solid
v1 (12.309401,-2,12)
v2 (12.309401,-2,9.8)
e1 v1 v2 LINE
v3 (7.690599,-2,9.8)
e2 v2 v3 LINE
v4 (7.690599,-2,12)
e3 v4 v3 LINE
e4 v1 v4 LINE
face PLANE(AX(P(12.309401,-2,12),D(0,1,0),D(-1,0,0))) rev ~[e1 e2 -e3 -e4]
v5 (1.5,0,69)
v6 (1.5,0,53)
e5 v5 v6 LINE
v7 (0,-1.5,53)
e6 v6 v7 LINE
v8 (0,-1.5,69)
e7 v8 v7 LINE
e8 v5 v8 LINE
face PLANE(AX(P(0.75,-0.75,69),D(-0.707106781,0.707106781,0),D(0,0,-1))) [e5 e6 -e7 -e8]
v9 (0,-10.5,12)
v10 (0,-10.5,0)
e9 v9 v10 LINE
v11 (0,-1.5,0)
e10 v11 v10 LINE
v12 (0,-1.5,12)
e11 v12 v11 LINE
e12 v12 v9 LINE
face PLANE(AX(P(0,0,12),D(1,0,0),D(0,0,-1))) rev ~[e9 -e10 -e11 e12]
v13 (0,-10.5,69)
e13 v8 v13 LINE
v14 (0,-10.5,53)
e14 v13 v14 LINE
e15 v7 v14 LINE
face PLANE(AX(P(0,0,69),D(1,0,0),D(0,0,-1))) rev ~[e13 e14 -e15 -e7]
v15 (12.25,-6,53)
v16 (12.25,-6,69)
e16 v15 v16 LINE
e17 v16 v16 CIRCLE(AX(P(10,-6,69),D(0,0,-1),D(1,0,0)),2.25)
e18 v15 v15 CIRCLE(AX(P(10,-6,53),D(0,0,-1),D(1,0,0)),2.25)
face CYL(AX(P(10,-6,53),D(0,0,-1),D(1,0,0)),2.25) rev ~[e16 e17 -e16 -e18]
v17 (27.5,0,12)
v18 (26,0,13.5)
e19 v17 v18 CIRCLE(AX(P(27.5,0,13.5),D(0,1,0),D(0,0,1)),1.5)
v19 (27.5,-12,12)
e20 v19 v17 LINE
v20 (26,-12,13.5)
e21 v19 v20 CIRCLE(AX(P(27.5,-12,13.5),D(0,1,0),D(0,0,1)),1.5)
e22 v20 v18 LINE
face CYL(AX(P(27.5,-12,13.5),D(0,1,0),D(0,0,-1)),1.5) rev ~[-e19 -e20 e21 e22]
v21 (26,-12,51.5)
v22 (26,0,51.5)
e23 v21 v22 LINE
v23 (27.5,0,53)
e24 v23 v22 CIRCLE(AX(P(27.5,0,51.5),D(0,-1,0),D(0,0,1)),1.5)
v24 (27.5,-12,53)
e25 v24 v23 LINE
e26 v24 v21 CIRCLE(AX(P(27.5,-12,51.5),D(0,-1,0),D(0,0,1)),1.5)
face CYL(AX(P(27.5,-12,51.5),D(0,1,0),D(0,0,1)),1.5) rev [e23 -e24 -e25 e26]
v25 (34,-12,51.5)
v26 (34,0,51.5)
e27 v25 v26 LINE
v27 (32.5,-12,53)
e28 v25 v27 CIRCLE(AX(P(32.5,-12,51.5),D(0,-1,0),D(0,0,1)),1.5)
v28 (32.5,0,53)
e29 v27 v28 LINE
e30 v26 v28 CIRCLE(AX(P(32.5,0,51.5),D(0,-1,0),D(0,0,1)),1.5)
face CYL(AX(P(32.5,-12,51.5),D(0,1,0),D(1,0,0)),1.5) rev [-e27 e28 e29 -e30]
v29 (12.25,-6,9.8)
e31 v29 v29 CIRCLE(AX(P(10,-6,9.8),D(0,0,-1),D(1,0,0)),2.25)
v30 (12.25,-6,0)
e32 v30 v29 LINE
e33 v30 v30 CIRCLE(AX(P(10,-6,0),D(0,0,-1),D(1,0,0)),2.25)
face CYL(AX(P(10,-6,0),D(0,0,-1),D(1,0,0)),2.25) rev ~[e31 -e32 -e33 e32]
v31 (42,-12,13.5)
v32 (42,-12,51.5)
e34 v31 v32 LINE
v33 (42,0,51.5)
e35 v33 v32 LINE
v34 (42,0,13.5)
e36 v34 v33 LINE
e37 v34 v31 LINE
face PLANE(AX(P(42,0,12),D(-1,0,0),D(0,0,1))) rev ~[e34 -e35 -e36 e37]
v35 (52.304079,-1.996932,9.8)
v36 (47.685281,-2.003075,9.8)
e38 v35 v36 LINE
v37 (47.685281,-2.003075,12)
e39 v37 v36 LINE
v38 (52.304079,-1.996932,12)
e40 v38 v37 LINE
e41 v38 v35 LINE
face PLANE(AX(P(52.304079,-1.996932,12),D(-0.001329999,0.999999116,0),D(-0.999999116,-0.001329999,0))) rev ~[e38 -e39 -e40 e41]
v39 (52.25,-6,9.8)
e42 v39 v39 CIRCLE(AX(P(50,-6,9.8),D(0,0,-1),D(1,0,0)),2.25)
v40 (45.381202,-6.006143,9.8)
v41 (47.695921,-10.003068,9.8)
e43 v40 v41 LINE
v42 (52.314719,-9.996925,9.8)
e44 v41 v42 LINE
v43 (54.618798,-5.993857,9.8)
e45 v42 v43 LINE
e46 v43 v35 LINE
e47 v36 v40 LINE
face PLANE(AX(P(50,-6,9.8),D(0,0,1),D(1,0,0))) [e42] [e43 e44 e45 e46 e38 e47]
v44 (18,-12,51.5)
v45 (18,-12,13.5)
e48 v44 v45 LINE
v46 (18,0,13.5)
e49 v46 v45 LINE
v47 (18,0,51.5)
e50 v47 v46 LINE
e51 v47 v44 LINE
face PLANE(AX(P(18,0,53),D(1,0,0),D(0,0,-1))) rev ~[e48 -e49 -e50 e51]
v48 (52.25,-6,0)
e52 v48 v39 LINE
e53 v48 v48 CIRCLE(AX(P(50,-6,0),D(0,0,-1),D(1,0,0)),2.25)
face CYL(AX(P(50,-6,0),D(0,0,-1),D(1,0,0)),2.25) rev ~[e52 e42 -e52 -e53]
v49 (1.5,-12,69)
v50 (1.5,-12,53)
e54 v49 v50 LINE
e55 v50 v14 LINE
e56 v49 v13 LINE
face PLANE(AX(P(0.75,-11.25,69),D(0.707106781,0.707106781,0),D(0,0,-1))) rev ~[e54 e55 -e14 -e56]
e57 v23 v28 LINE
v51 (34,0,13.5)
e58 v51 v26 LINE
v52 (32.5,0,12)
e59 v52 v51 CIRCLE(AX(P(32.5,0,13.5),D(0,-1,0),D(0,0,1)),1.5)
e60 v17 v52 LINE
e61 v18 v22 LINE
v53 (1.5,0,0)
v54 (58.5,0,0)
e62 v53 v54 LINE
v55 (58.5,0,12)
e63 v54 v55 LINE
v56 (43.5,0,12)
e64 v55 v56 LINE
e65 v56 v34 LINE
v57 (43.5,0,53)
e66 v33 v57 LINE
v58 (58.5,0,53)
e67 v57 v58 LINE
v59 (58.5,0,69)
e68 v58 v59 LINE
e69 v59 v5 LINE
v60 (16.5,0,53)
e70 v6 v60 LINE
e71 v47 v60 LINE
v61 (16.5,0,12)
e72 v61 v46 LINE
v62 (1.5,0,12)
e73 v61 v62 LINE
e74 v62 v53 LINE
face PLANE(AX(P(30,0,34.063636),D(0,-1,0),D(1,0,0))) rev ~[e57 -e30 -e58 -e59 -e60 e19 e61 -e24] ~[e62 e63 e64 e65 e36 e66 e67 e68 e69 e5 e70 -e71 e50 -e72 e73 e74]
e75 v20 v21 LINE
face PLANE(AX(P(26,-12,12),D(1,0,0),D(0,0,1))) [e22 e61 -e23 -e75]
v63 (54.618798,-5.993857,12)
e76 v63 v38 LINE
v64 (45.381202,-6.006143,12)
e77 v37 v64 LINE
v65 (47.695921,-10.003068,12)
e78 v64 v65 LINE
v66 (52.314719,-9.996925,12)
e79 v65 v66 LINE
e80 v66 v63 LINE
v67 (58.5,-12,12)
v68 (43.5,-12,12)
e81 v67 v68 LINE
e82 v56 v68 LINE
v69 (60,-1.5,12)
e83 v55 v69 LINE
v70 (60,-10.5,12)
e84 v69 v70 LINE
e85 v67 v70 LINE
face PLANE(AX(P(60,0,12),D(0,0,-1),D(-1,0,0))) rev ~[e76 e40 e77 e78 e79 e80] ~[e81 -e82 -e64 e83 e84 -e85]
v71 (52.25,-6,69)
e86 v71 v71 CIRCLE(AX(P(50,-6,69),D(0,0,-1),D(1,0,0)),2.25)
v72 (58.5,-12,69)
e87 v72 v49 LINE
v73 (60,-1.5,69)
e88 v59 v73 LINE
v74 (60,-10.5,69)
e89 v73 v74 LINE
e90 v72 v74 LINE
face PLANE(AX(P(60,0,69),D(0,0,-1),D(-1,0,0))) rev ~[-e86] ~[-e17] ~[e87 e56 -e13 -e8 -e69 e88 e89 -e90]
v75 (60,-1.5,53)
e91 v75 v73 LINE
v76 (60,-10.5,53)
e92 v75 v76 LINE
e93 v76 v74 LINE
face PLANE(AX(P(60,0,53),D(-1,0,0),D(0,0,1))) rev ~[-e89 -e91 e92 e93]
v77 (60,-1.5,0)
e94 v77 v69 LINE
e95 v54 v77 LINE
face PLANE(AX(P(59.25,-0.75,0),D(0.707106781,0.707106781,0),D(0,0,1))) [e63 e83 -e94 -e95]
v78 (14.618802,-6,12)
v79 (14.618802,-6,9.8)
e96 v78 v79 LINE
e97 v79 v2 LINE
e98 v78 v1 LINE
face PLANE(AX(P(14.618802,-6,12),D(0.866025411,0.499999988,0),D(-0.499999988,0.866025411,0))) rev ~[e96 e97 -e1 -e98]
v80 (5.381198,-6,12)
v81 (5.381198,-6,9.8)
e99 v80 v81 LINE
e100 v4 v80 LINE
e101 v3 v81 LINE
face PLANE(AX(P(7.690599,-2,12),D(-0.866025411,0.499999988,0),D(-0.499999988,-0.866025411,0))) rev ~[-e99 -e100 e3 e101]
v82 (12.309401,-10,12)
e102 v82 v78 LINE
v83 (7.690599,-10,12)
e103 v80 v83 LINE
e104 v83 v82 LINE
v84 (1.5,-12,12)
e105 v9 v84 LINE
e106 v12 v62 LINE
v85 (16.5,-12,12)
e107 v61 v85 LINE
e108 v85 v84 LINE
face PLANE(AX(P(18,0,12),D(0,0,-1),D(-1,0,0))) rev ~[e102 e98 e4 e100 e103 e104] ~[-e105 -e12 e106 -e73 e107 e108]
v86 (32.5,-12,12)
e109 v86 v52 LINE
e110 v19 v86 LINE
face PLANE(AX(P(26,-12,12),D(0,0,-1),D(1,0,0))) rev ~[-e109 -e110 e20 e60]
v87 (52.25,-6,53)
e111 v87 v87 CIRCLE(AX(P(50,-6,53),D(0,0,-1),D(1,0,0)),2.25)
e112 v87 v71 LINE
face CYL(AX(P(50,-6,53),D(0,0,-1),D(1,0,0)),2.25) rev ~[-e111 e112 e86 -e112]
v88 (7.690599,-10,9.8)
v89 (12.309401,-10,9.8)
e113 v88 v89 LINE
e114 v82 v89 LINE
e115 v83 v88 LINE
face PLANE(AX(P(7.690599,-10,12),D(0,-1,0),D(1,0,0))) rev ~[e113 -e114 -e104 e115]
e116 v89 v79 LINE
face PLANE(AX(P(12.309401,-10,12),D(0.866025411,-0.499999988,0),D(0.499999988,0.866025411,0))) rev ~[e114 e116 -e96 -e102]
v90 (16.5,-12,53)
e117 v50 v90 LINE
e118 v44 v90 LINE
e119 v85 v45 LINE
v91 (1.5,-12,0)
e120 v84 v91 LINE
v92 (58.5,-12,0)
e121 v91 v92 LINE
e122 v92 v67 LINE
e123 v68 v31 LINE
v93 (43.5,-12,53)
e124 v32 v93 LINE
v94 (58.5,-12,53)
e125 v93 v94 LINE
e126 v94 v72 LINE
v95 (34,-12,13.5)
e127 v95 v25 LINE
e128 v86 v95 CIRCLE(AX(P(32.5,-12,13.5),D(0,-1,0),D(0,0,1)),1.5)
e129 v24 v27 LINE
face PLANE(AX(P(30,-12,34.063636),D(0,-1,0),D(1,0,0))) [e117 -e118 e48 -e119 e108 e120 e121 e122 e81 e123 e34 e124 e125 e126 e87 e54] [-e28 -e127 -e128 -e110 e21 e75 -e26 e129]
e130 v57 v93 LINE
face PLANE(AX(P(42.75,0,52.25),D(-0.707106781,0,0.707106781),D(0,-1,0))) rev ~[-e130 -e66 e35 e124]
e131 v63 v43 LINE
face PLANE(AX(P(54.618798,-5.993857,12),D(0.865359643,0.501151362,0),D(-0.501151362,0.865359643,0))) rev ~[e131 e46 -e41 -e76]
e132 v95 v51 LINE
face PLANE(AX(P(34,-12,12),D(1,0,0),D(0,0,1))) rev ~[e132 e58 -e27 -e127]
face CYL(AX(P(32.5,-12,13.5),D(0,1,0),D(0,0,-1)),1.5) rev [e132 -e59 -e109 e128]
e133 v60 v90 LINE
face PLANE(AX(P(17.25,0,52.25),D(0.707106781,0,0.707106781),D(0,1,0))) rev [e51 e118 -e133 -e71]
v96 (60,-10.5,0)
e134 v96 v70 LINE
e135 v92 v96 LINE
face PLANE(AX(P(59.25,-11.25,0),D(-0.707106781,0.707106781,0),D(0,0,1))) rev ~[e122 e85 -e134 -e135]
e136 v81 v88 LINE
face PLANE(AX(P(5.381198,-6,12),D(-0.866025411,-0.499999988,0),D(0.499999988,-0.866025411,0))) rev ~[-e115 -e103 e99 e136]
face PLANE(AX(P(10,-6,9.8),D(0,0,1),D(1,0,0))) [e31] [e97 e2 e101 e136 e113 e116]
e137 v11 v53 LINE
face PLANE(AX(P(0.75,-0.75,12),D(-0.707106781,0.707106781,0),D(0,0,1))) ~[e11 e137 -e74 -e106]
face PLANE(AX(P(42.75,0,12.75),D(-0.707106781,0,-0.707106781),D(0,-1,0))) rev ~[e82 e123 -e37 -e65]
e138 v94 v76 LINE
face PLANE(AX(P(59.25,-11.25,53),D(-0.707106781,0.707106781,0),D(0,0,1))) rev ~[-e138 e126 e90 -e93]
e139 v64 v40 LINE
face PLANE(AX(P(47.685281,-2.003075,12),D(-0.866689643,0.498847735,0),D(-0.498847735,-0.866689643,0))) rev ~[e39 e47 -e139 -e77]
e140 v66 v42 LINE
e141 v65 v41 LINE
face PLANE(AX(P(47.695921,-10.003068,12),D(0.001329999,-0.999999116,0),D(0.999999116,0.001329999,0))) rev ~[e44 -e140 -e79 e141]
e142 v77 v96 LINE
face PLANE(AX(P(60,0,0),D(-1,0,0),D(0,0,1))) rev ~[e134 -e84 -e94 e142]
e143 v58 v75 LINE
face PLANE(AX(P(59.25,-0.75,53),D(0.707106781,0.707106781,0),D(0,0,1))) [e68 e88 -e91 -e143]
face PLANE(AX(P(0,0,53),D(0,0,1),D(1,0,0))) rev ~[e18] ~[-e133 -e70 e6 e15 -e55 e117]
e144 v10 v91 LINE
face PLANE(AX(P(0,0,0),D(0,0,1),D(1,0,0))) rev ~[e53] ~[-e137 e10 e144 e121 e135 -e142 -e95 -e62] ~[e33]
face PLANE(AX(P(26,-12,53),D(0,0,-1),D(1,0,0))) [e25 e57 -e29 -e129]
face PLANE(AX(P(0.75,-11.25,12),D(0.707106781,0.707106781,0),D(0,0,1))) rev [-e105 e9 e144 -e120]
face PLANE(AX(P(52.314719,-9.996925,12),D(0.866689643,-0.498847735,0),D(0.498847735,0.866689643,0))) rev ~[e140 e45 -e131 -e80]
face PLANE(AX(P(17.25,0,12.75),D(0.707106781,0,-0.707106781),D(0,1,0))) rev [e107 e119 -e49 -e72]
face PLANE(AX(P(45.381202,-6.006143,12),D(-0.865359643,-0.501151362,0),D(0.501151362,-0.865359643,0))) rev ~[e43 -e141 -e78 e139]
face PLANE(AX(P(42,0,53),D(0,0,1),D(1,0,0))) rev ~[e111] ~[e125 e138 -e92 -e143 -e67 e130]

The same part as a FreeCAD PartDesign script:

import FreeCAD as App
import Part
import Sketcher
from FreeCAD import Vector
Q = App.Units.Quantity


def edges_at(feature, points):
    """Names of the edges that pass closest to the given points."""
    edges = feature.Shape.Edges
    near = lambda p: min(range(len(edges)), key=lambda i: edges[i].distToShape(Part.Vertex(*p))[0])
    return sorted({f"Edge{near(p) + 1}" for p in points})

doc = App.newDocument("Part")
body = doc.addObject("PartDesign::Body", "Body")

# Sketch on XZ plane
sketch1 = doc.addObject("Sketcher::SketchObject", "Sketch")
body.addObject(sketch1)
sketch1.AttachmentSupport = (doc.XZ_Plane, [""])
sketch1.MapMode = "FlatFace"
sketch1.addGeometry(Part.LineSegment(Vector(0, 12, 0), Vector(0, 0, 0)), False)
sketch1.addGeometry(Part.LineSegment(Vector(0, 0, 0), Vector(60, 0, 0)), False)
sketch1.addGeometry(Part.LineSegment(Vector(60, 0, 0), Vector(60, 12, 0)), False)
sketch1.addGeometry(Part.LineSegment(Vector(60, 12, 0), Vector(42, 12, 0)), False)
sketch1.addGeometry(Part.LineSegment(Vector(42, 12, 0), Vector(42, 53, 0)), False)
sketch1.addGeometry(Part.LineSegment(Vector(42, 53, 0), Vector(60, 53, 0)), False)
sketch1.addGeometry(Part.LineSegment(Vector(60, 53, 0), Vector(60, 69, 0)), False)
sketch1.addGeometry(Part.LineSegment(Vector(60, 69, 0), Vector(0, 69, 0)), False)
sketch1.addGeometry(Part.LineSegment(Vector(0, 69, 0), Vector(0, 53, 0)), False)
sketch1.addGeometry(Part.LineSegment(Vector(0, 53, 0), Vector(18, 53, 0)), False)
sketch1.addGeometry(Part.LineSegment(Vector(18, 53, 0), Vector(18, 12, 0)), False)
sketch1.addGeometry(Part.LineSegment(Vector(18, 12, 0), Vector(0, 12, 0)), False)
sketch1.addConstraint(Sketcher.Constraint("Coincident", 0, 2, 1, 1))
sketch1.addConstraint(Sketcher.Constraint("Coincident", 1, 2, 2, 1))
sketch1.addConstraint(Sketcher.Constraint("Coincident", 2, 2, 3, 1))
sketch1.addConstraint(Sketcher.Constraint("Coincident", 3, 2, 4, 1))
sketch1.addConstraint(Sketcher.Constraint("Coincident", 4, 2, 5, 1))
sketch1.addConstraint(Sketcher.Constraint("Coincident", 5, 2, 6, 1))
sketch1.addConstraint(Sketcher.Constraint("Coincident", 6, 2, 7, 1))
sketch1.addConstraint(Sketcher.Constraint("Coincident", 7, 2, 8, 1))
sketch1.addConstraint(Sketcher.Constraint("Coincident", 8, 2, 9, 1))
sketch1.addConstraint(Sketcher.Constraint("Coincident", 9, 2, 10, 1))
sketch1.addConstraint(Sketcher.Constraint("Coincident", 10, 2, 11, 1))
sketch1.addConstraint(Sketcher.Constraint("Coincident", 11, 2, 0, 1))
sketch1.addConstraint(Sketcher.Constraint("Vertical", 0))
sketch1.addConstraint(Sketcher.Constraint("Horizontal", 1))
sketch1.addConstraint(Sketcher.Constraint("Vertical", 2))
sketch1.addConstraint(Sketcher.Constraint("Horizontal", 3))
sketch1.addConstraint(Sketcher.Constraint("Vertical", 4))
sketch1.addConstraint(Sketcher.Constraint("Horizontal", 5))
sketch1.addConstraint(Sketcher.Constraint("Vertical", 6))
sketch1.addConstraint(Sketcher.Constraint("Horizontal", 7))
sketch1.addConstraint(Sketcher.Constraint("Vertical", 8))
sketch1.addConstraint(Sketcher.Constraint("Horizontal", 9))
sketch1.addConstraint(Sketcher.Constraint("Vertical", 10))
sketch1.addConstraint(Sketcher.Constraint("Horizontal", 11))
sketch1.addConstraint(Sketcher.Constraint("Coincident", 0, 2, -1, 1))
sketch1.addConstraint(Sketcher.Constraint("PointOnObject", 7, 2, -2))
sketch1.addConstraint(Sketcher.Constraint("Horizontal", 5, 2, 8, 2))
sketch1.addConstraint(Sketcher.Constraint("Horizontal", 3, 2, 10, 2))
sketch1.addConstraint(Sketcher.Constraint("Vertical", 2, 2, 5, 2))
sketch1.addConstraint(Sketcher.Constraint("Equal", 5, 9))
sketch1.addConstraint(Sketcher.Constraint("DistanceX", 1, 1, 1, 2, Q("60 mm")))
sketch1.addConstraint(Sketcher.Constraint("DistanceX", 3, 2, 3, 1, Q("18 mm")))
sketch1.addConstraint(Sketcher.Constraint("DistanceY", 0, 2, 0, 1, Q("12 mm")))
sketch1.addConstraint(Sketcher.Constraint("DistanceY", 4, 1, 4, 2, Q("41 mm")))
sketch1.addConstraint(Sketcher.Constraint("DistanceY", 6, 1, 6, 2, Q("16 mm")))
pad1 = doc.addObject("PartDesign::Pad", "Pad")
body.addObject(pad1)
pad1.Profile = sketch1
pad1.Length = 12

# Sketch on XY plane
sketch2 = doc.addObject("Sketcher::SketchObject", "Sketch001")
body.addObject(sketch2)
sketch2.AttachmentSupport = (doc.XY_Plane, [""])
sketch2.MapMode = "FlatFace"
sketch2.AttachmentOffset = App.Placement(Vector(0, 0, 53), App.Rotation())
sketch2.addGeometry(Part.Circle(Vector(10, -6, 0), Vector(0, 0, 1), 2.25), False)
sketch2.addGeometry(Part.Circle(Vector(50, -6, 0), Vector(0, 0, 1), 2.25), False)
sketch2.addConstraint(Sketcher.Constraint("Equal", 0, 1))
sketch2.addConstraint(Sketcher.Constraint("Horizontal", 0, 3, 1, 3))
sketch2.addConstraint(Sketcher.Constraint("Diameter", 0, Q("4.5 mm")))
sketch2.addConstraint(Sketcher.Constraint("DistanceX", -1, 1, 0, 3, Q("10 mm")))
sketch2.addConstraint(Sketcher.Constraint("DistanceY", 0, 3, -1, 1, Q("6 mm")))
sketch2.addConstraint(Sketcher.Constraint("DistanceX", -1, 1, 1, 3, Q("50 mm")))
pocket1 = doc.addObject("PartDesign::Pocket", "Pocket")
body.addObject(pocket1)
pocket1.Profile = sketch2
pocket1.Type = "ThroughAll"
pocket1.Reversed = True
doc.recompute()

chamfer = doc.addObject("PartDesign::Chamfer", "Chamfer")
body.addObject(chamfer)
chamfer.Base = (pocket1, edges_at(pocket1, [
    (60, -12, 61),
    (60, -12, 6),
    (60, 0, 6),
    (60, 0, 61),
    (0, -12, 61),
    (0, 0, 61),
    (0, 0, 6),
    (0, -12, 6),
    (18, -6, 12),
    (18, -6, 53),
    (42, -6, 53),
    (42, -6, 12),
]))
chamfer.Size = 1.5

# Sketch on XZ plane
sketch3 = doc.addObject("Sketcher::SketchObject", "Sketch002")
body.addObject(sketch3)
sketch3.AttachmentSupport = (doc.XZ_Plane, [""])
sketch3.MapMode = "FlatFace"
sketch3.AttachmentOffset = App.Placement(Vector(0, 0, 12), App.Rotation())
sketch3.addGeometry(Part.LineSegment(Vector(26, 53, 0), Vector(26, 12, 0)), False)
sketch3.addGeometry(Part.LineSegment(Vector(26, 12, 0), Vector(34, 12, 0)), False)
sketch3.addGeometry(Part.LineSegment(Vector(34, 12, 0), Vector(34, 53, 0)), False)
sketch3.addGeometry(Part.LineSegment(Vector(34, 53, 0), Vector(26, 53, 0)), False)
sketch3.addConstraint(Sketcher.Constraint("Coincident", 0, 2, 1, 1))
sketch3.addConstraint(Sketcher.Constraint("Coincident", 1, 2, 2, 1))
sketch3.addConstraint(Sketcher.Constraint("Coincident", 2, 2, 3, 1))
sketch3.addConstraint(Sketcher.Constraint("Coincident", 3, 2, 0, 1))
sketch3.addConstraint(Sketcher.Constraint("Vertical", 0))
sketch3.addConstraint(Sketcher.Constraint("Horizontal", 1))
sketch3.addConstraint(Sketcher.Constraint("Vertical", 2))
sketch3.addConstraint(Sketcher.Constraint("Horizontal", 3))
sketch3.addConstraint(Sketcher.Constraint("DistanceX", 1, 1, 1, 2, Q("8 mm")))
sketch3.addConstraint(Sketcher.Constraint("DistanceY", 0, 2, 0, 1, Q("41 mm")))
sketch3.addConstraint(Sketcher.Constraint("DistanceX", -1, 1, 0, 2, Q("26 mm")))
sketch3.addConstraint(Sketcher.Constraint("DistanceY", -1, 1, 0, 2, Q("12 mm")))
pocket2 = doc.addObject("PartDesign::Pocket", "Pocket001")
body.addObject(pocket2)
pocket2.Profile = sketch3
pocket2.Type = "ThroughAll"
doc.recompute()

fillet = doc.addObject("PartDesign::Fillet", "Fillet")
body.addObject(fillet)
fillet.Base = (pocket2, edges_at(pocket2, [
    (26, -6, 53),
    (34, -6, 53),
    (34, -6, 12),
    (26, -6, 12),
]))
fillet.Radius = 1.5

# Sketch on XY plane
sketch4 = doc.addObject("Sketcher::SketchObject", "Sketch003")
body.addObject(sketch4)
sketch4.AttachmentSupport = (doc.XY_Plane, [""])
sketch4.MapMode = "FlatFace"
sketch4.addGeometry(Part.Circle(Vector(50, -6, 0), Vector(0, 0, 1), 2.25), False)
sketch4.addGeometry(Part.Circle(Vector(10, -6, 0), Vector(0, 0, 1), 2.25), False)
sketch4.addConstraint(Sketcher.Constraint("Equal", 0, 1))
sketch4.addConstraint(Sketcher.Constraint("Horizontal", 0, 3, 1, 3))
sketch4.addConstraint(Sketcher.Constraint("Diameter", 0, Q("4.5 mm")))
sketch4.addConstraint(Sketcher.Constraint("DistanceX", -1, 1, 0, 3, Q("50 mm")))
sketch4.addConstraint(Sketcher.Constraint("DistanceY", 0, 3, -1, 1, Q("6 mm")))
sketch4.addConstraint(Sketcher.Constraint("DistanceX", -1, 1, 1, 3, Q("10 mm")))
pocket3 = doc.addObject("PartDesign::Pocket", "Pocket002")
body.addObject(pocket3)
pocket3.Profile = sketch4
pocket3.Type = "ThroughAll"
pocket3.Reversed = True

# Sketch on XY plane
sketch5 = doc.addObject("Sketcher::SketchObject", "Sketch004")
body.addObject(sketch5)
sketch5.AttachmentSupport = (doc.XY_Plane, [""])
sketch5.MapMode = "FlatFace"
sketch5.AttachmentOffset = App.Placement(Vector(0, 0, 12), App.Rotation())
sketch5.addGeometry(Part.LineSegment(Vector(7.690599, -10, 0), Vector(12.309401, -10, 0)), False)
sketch5.addGeometry(Part.LineSegment(Vector(12.309401, -10, 0), Vector(14.618802, -6, 0)), False)
sketch5.addGeometry(Part.LineSegment(Vector(14.618802, -6, 0), Vector(12.309401, -2, 0)), False)
sketch5.addGeometry(Part.LineSegment(Vector(12.309401, -2, 0), Vector(7.690599, -2, 0)), False)
sketch5.addGeometry(Part.LineSegment(Vector(7.690599, -2, 0), Vector(5.381198, -6, 0)), False)
sketch5.addGeometry(Part.LineSegment(Vector(5.381198, -6, 0), Vector(7.690599, -10, 0)), False)
sketch5.addGeometry(Part.LineSegment(Vector(52.314719, -9.996925, 0), Vector(54.618798, -5.993857, 0)), False)
sketch5.addGeometry(Part.LineSegment(Vector(54.618798, -5.993857, 0), Vector(52.304079, -1.996932, 0)), False)
sketch5.addGeometry(Part.LineSegment(Vector(52.304079, -1.996932, 0), Vector(47.685281, -2.003075, 0)), False)
sketch5.addGeometry(Part.LineSegment(Vector(47.685281, -2.003075, 0), Vector(45.381202, -6.006143, 0)), False)
sketch5.addGeometry(Part.LineSegment(Vector(45.381202, -6.006143, 0), Vector(47.695921, -10.003068, 0)), False)
sketch5.addGeometry(Part.LineSegment(Vector(47.695921, -10.003068, 0), Vector(52.314719, -9.996925, 0)), False)
sketch5.addConstraint(Sketcher.Constraint("Coincident", 0, 2, 1, 1))
sketch5.addConstraint(Sketcher.Constraint("Coincident", 1, 2, 2, 1))
sketch5.addConstraint(Sketcher.Constraint("Coincident", 2, 2, 3, 1))
sketch5.addConstraint(Sketcher.Constraint("Coincident", 3, 2, 4, 1))
sketch5.addConstraint(Sketcher.Constraint("Coincident", 4, 2, 5, 1))
sketch5.addConstraint(Sketcher.Constraint("Coincident", 5, 2, 0, 1))
sketch5.addConstraint(Sketcher.Constraint("Coincident", 6, 2, 7, 1))
sketch5.addConstraint(Sketcher.Constraint("Coincident", 7, 2, 8, 1))
sketch5.addConstraint(Sketcher.Constraint("Coincident", 8, 2, 9, 1))
sketch5.addConstraint(Sketcher.Constraint("Coincident", 9, 2, 10, 1))
sketch5.addConstraint(Sketcher.Constraint("Coincident", 10, 2, 11, 1))
sketch5.addConstraint(Sketcher.Constraint("Coincident", 11, 2, 6, 1))
sketch5.addConstraint(Sketcher.Constraint("Horizontal", 0))
sketch5.addConstraint(Sketcher.Constraint("Horizontal", 3))
sketch5.addConstraint(Sketcher.Constraint("Parallel", 1, 4))
sketch5.addConstraint(Sketcher.Constraint("Parallel", 2, 5))
sketch5.addConstraint(Sketcher.Constraint("Parallel", 6, 9))
sketch5.addConstraint(Sketcher.Constraint("Parallel", 7, 10))
sketch5.addConstraint(Sketcher.Constraint("Parallel", 8, 11))
sketch5.addConstraint(Sketcher.Constraint("Horizontal", 1, 2, 4, 2))
sketch5.addConstraint(Sketcher.Constraint("Vertical", 0, 2, 2, 2))
sketch5.addConstraint(Sketcher.Constraint("Vertical", 3, 2, 5, 2))
sketch5.addConstraint(Sketcher.Constraint("Equal", 5, 6))
sketch5.addConstraint(Sketcher.Constraint("Equal", 6, 7))
sketch5.addConstraint(Sketcher.Constraint("Equal", 7, 8))
sketch5.addConstraint(Sketcher.Constraint("Equal", 8, 9))
sketch5.addConstraint(Sketcher.Constraint("Angle", 1, Q("60.000001 deg")))
sketch5.addConstraint(Sketcher.Constraint("DistanceY", 0, 2, -1, 1, Q("10 mm")))
sketch5.addConstraint(Sketcher.Constraint("DistanceY", 1, 2, -1, 1, Q("6 mm")))
sketch5.addConstraint(Sketcher.Constraint("DistanceX", 0, 1, 0, 2, Q("4.618802 mm")))
sketch5.addConstraint(Sketcher.Constraint("DistanceX", -1, 1, 0, 2, Q("12.309401 mm")))
sketch5.addConstraint(Sketcher.Constraint("DistanceX", 3, 2, 6, 2, Q("46.928199 mm")))
sketch5.addConstraint(Sketcher.Constraint("DistanceX", 1, 2, 9, 2, Q("30.7624 mm")))
sketch5.addConstraint(Sketcher.Constraint("DistanceX", -1, 1, 7, 2, Q("52.304079 mm")))
sketch5.addConstraint(Sketcher.Constraint("DistanceY", 7, 2, -1, 1, Q("1.996932 mm")))
sketch5.addConstraint(Sketcher.Constraint("DistanceY", 10, 2, -1, 1, Q("10.003068 mm")))
pocket4 = doc.addObject("PartDesign::Pocket", "Pocket003")
body.addObject(pocket4)
pocket4.Profile = sketch5
pocket4.Length = 2.2

doc.recompute()
